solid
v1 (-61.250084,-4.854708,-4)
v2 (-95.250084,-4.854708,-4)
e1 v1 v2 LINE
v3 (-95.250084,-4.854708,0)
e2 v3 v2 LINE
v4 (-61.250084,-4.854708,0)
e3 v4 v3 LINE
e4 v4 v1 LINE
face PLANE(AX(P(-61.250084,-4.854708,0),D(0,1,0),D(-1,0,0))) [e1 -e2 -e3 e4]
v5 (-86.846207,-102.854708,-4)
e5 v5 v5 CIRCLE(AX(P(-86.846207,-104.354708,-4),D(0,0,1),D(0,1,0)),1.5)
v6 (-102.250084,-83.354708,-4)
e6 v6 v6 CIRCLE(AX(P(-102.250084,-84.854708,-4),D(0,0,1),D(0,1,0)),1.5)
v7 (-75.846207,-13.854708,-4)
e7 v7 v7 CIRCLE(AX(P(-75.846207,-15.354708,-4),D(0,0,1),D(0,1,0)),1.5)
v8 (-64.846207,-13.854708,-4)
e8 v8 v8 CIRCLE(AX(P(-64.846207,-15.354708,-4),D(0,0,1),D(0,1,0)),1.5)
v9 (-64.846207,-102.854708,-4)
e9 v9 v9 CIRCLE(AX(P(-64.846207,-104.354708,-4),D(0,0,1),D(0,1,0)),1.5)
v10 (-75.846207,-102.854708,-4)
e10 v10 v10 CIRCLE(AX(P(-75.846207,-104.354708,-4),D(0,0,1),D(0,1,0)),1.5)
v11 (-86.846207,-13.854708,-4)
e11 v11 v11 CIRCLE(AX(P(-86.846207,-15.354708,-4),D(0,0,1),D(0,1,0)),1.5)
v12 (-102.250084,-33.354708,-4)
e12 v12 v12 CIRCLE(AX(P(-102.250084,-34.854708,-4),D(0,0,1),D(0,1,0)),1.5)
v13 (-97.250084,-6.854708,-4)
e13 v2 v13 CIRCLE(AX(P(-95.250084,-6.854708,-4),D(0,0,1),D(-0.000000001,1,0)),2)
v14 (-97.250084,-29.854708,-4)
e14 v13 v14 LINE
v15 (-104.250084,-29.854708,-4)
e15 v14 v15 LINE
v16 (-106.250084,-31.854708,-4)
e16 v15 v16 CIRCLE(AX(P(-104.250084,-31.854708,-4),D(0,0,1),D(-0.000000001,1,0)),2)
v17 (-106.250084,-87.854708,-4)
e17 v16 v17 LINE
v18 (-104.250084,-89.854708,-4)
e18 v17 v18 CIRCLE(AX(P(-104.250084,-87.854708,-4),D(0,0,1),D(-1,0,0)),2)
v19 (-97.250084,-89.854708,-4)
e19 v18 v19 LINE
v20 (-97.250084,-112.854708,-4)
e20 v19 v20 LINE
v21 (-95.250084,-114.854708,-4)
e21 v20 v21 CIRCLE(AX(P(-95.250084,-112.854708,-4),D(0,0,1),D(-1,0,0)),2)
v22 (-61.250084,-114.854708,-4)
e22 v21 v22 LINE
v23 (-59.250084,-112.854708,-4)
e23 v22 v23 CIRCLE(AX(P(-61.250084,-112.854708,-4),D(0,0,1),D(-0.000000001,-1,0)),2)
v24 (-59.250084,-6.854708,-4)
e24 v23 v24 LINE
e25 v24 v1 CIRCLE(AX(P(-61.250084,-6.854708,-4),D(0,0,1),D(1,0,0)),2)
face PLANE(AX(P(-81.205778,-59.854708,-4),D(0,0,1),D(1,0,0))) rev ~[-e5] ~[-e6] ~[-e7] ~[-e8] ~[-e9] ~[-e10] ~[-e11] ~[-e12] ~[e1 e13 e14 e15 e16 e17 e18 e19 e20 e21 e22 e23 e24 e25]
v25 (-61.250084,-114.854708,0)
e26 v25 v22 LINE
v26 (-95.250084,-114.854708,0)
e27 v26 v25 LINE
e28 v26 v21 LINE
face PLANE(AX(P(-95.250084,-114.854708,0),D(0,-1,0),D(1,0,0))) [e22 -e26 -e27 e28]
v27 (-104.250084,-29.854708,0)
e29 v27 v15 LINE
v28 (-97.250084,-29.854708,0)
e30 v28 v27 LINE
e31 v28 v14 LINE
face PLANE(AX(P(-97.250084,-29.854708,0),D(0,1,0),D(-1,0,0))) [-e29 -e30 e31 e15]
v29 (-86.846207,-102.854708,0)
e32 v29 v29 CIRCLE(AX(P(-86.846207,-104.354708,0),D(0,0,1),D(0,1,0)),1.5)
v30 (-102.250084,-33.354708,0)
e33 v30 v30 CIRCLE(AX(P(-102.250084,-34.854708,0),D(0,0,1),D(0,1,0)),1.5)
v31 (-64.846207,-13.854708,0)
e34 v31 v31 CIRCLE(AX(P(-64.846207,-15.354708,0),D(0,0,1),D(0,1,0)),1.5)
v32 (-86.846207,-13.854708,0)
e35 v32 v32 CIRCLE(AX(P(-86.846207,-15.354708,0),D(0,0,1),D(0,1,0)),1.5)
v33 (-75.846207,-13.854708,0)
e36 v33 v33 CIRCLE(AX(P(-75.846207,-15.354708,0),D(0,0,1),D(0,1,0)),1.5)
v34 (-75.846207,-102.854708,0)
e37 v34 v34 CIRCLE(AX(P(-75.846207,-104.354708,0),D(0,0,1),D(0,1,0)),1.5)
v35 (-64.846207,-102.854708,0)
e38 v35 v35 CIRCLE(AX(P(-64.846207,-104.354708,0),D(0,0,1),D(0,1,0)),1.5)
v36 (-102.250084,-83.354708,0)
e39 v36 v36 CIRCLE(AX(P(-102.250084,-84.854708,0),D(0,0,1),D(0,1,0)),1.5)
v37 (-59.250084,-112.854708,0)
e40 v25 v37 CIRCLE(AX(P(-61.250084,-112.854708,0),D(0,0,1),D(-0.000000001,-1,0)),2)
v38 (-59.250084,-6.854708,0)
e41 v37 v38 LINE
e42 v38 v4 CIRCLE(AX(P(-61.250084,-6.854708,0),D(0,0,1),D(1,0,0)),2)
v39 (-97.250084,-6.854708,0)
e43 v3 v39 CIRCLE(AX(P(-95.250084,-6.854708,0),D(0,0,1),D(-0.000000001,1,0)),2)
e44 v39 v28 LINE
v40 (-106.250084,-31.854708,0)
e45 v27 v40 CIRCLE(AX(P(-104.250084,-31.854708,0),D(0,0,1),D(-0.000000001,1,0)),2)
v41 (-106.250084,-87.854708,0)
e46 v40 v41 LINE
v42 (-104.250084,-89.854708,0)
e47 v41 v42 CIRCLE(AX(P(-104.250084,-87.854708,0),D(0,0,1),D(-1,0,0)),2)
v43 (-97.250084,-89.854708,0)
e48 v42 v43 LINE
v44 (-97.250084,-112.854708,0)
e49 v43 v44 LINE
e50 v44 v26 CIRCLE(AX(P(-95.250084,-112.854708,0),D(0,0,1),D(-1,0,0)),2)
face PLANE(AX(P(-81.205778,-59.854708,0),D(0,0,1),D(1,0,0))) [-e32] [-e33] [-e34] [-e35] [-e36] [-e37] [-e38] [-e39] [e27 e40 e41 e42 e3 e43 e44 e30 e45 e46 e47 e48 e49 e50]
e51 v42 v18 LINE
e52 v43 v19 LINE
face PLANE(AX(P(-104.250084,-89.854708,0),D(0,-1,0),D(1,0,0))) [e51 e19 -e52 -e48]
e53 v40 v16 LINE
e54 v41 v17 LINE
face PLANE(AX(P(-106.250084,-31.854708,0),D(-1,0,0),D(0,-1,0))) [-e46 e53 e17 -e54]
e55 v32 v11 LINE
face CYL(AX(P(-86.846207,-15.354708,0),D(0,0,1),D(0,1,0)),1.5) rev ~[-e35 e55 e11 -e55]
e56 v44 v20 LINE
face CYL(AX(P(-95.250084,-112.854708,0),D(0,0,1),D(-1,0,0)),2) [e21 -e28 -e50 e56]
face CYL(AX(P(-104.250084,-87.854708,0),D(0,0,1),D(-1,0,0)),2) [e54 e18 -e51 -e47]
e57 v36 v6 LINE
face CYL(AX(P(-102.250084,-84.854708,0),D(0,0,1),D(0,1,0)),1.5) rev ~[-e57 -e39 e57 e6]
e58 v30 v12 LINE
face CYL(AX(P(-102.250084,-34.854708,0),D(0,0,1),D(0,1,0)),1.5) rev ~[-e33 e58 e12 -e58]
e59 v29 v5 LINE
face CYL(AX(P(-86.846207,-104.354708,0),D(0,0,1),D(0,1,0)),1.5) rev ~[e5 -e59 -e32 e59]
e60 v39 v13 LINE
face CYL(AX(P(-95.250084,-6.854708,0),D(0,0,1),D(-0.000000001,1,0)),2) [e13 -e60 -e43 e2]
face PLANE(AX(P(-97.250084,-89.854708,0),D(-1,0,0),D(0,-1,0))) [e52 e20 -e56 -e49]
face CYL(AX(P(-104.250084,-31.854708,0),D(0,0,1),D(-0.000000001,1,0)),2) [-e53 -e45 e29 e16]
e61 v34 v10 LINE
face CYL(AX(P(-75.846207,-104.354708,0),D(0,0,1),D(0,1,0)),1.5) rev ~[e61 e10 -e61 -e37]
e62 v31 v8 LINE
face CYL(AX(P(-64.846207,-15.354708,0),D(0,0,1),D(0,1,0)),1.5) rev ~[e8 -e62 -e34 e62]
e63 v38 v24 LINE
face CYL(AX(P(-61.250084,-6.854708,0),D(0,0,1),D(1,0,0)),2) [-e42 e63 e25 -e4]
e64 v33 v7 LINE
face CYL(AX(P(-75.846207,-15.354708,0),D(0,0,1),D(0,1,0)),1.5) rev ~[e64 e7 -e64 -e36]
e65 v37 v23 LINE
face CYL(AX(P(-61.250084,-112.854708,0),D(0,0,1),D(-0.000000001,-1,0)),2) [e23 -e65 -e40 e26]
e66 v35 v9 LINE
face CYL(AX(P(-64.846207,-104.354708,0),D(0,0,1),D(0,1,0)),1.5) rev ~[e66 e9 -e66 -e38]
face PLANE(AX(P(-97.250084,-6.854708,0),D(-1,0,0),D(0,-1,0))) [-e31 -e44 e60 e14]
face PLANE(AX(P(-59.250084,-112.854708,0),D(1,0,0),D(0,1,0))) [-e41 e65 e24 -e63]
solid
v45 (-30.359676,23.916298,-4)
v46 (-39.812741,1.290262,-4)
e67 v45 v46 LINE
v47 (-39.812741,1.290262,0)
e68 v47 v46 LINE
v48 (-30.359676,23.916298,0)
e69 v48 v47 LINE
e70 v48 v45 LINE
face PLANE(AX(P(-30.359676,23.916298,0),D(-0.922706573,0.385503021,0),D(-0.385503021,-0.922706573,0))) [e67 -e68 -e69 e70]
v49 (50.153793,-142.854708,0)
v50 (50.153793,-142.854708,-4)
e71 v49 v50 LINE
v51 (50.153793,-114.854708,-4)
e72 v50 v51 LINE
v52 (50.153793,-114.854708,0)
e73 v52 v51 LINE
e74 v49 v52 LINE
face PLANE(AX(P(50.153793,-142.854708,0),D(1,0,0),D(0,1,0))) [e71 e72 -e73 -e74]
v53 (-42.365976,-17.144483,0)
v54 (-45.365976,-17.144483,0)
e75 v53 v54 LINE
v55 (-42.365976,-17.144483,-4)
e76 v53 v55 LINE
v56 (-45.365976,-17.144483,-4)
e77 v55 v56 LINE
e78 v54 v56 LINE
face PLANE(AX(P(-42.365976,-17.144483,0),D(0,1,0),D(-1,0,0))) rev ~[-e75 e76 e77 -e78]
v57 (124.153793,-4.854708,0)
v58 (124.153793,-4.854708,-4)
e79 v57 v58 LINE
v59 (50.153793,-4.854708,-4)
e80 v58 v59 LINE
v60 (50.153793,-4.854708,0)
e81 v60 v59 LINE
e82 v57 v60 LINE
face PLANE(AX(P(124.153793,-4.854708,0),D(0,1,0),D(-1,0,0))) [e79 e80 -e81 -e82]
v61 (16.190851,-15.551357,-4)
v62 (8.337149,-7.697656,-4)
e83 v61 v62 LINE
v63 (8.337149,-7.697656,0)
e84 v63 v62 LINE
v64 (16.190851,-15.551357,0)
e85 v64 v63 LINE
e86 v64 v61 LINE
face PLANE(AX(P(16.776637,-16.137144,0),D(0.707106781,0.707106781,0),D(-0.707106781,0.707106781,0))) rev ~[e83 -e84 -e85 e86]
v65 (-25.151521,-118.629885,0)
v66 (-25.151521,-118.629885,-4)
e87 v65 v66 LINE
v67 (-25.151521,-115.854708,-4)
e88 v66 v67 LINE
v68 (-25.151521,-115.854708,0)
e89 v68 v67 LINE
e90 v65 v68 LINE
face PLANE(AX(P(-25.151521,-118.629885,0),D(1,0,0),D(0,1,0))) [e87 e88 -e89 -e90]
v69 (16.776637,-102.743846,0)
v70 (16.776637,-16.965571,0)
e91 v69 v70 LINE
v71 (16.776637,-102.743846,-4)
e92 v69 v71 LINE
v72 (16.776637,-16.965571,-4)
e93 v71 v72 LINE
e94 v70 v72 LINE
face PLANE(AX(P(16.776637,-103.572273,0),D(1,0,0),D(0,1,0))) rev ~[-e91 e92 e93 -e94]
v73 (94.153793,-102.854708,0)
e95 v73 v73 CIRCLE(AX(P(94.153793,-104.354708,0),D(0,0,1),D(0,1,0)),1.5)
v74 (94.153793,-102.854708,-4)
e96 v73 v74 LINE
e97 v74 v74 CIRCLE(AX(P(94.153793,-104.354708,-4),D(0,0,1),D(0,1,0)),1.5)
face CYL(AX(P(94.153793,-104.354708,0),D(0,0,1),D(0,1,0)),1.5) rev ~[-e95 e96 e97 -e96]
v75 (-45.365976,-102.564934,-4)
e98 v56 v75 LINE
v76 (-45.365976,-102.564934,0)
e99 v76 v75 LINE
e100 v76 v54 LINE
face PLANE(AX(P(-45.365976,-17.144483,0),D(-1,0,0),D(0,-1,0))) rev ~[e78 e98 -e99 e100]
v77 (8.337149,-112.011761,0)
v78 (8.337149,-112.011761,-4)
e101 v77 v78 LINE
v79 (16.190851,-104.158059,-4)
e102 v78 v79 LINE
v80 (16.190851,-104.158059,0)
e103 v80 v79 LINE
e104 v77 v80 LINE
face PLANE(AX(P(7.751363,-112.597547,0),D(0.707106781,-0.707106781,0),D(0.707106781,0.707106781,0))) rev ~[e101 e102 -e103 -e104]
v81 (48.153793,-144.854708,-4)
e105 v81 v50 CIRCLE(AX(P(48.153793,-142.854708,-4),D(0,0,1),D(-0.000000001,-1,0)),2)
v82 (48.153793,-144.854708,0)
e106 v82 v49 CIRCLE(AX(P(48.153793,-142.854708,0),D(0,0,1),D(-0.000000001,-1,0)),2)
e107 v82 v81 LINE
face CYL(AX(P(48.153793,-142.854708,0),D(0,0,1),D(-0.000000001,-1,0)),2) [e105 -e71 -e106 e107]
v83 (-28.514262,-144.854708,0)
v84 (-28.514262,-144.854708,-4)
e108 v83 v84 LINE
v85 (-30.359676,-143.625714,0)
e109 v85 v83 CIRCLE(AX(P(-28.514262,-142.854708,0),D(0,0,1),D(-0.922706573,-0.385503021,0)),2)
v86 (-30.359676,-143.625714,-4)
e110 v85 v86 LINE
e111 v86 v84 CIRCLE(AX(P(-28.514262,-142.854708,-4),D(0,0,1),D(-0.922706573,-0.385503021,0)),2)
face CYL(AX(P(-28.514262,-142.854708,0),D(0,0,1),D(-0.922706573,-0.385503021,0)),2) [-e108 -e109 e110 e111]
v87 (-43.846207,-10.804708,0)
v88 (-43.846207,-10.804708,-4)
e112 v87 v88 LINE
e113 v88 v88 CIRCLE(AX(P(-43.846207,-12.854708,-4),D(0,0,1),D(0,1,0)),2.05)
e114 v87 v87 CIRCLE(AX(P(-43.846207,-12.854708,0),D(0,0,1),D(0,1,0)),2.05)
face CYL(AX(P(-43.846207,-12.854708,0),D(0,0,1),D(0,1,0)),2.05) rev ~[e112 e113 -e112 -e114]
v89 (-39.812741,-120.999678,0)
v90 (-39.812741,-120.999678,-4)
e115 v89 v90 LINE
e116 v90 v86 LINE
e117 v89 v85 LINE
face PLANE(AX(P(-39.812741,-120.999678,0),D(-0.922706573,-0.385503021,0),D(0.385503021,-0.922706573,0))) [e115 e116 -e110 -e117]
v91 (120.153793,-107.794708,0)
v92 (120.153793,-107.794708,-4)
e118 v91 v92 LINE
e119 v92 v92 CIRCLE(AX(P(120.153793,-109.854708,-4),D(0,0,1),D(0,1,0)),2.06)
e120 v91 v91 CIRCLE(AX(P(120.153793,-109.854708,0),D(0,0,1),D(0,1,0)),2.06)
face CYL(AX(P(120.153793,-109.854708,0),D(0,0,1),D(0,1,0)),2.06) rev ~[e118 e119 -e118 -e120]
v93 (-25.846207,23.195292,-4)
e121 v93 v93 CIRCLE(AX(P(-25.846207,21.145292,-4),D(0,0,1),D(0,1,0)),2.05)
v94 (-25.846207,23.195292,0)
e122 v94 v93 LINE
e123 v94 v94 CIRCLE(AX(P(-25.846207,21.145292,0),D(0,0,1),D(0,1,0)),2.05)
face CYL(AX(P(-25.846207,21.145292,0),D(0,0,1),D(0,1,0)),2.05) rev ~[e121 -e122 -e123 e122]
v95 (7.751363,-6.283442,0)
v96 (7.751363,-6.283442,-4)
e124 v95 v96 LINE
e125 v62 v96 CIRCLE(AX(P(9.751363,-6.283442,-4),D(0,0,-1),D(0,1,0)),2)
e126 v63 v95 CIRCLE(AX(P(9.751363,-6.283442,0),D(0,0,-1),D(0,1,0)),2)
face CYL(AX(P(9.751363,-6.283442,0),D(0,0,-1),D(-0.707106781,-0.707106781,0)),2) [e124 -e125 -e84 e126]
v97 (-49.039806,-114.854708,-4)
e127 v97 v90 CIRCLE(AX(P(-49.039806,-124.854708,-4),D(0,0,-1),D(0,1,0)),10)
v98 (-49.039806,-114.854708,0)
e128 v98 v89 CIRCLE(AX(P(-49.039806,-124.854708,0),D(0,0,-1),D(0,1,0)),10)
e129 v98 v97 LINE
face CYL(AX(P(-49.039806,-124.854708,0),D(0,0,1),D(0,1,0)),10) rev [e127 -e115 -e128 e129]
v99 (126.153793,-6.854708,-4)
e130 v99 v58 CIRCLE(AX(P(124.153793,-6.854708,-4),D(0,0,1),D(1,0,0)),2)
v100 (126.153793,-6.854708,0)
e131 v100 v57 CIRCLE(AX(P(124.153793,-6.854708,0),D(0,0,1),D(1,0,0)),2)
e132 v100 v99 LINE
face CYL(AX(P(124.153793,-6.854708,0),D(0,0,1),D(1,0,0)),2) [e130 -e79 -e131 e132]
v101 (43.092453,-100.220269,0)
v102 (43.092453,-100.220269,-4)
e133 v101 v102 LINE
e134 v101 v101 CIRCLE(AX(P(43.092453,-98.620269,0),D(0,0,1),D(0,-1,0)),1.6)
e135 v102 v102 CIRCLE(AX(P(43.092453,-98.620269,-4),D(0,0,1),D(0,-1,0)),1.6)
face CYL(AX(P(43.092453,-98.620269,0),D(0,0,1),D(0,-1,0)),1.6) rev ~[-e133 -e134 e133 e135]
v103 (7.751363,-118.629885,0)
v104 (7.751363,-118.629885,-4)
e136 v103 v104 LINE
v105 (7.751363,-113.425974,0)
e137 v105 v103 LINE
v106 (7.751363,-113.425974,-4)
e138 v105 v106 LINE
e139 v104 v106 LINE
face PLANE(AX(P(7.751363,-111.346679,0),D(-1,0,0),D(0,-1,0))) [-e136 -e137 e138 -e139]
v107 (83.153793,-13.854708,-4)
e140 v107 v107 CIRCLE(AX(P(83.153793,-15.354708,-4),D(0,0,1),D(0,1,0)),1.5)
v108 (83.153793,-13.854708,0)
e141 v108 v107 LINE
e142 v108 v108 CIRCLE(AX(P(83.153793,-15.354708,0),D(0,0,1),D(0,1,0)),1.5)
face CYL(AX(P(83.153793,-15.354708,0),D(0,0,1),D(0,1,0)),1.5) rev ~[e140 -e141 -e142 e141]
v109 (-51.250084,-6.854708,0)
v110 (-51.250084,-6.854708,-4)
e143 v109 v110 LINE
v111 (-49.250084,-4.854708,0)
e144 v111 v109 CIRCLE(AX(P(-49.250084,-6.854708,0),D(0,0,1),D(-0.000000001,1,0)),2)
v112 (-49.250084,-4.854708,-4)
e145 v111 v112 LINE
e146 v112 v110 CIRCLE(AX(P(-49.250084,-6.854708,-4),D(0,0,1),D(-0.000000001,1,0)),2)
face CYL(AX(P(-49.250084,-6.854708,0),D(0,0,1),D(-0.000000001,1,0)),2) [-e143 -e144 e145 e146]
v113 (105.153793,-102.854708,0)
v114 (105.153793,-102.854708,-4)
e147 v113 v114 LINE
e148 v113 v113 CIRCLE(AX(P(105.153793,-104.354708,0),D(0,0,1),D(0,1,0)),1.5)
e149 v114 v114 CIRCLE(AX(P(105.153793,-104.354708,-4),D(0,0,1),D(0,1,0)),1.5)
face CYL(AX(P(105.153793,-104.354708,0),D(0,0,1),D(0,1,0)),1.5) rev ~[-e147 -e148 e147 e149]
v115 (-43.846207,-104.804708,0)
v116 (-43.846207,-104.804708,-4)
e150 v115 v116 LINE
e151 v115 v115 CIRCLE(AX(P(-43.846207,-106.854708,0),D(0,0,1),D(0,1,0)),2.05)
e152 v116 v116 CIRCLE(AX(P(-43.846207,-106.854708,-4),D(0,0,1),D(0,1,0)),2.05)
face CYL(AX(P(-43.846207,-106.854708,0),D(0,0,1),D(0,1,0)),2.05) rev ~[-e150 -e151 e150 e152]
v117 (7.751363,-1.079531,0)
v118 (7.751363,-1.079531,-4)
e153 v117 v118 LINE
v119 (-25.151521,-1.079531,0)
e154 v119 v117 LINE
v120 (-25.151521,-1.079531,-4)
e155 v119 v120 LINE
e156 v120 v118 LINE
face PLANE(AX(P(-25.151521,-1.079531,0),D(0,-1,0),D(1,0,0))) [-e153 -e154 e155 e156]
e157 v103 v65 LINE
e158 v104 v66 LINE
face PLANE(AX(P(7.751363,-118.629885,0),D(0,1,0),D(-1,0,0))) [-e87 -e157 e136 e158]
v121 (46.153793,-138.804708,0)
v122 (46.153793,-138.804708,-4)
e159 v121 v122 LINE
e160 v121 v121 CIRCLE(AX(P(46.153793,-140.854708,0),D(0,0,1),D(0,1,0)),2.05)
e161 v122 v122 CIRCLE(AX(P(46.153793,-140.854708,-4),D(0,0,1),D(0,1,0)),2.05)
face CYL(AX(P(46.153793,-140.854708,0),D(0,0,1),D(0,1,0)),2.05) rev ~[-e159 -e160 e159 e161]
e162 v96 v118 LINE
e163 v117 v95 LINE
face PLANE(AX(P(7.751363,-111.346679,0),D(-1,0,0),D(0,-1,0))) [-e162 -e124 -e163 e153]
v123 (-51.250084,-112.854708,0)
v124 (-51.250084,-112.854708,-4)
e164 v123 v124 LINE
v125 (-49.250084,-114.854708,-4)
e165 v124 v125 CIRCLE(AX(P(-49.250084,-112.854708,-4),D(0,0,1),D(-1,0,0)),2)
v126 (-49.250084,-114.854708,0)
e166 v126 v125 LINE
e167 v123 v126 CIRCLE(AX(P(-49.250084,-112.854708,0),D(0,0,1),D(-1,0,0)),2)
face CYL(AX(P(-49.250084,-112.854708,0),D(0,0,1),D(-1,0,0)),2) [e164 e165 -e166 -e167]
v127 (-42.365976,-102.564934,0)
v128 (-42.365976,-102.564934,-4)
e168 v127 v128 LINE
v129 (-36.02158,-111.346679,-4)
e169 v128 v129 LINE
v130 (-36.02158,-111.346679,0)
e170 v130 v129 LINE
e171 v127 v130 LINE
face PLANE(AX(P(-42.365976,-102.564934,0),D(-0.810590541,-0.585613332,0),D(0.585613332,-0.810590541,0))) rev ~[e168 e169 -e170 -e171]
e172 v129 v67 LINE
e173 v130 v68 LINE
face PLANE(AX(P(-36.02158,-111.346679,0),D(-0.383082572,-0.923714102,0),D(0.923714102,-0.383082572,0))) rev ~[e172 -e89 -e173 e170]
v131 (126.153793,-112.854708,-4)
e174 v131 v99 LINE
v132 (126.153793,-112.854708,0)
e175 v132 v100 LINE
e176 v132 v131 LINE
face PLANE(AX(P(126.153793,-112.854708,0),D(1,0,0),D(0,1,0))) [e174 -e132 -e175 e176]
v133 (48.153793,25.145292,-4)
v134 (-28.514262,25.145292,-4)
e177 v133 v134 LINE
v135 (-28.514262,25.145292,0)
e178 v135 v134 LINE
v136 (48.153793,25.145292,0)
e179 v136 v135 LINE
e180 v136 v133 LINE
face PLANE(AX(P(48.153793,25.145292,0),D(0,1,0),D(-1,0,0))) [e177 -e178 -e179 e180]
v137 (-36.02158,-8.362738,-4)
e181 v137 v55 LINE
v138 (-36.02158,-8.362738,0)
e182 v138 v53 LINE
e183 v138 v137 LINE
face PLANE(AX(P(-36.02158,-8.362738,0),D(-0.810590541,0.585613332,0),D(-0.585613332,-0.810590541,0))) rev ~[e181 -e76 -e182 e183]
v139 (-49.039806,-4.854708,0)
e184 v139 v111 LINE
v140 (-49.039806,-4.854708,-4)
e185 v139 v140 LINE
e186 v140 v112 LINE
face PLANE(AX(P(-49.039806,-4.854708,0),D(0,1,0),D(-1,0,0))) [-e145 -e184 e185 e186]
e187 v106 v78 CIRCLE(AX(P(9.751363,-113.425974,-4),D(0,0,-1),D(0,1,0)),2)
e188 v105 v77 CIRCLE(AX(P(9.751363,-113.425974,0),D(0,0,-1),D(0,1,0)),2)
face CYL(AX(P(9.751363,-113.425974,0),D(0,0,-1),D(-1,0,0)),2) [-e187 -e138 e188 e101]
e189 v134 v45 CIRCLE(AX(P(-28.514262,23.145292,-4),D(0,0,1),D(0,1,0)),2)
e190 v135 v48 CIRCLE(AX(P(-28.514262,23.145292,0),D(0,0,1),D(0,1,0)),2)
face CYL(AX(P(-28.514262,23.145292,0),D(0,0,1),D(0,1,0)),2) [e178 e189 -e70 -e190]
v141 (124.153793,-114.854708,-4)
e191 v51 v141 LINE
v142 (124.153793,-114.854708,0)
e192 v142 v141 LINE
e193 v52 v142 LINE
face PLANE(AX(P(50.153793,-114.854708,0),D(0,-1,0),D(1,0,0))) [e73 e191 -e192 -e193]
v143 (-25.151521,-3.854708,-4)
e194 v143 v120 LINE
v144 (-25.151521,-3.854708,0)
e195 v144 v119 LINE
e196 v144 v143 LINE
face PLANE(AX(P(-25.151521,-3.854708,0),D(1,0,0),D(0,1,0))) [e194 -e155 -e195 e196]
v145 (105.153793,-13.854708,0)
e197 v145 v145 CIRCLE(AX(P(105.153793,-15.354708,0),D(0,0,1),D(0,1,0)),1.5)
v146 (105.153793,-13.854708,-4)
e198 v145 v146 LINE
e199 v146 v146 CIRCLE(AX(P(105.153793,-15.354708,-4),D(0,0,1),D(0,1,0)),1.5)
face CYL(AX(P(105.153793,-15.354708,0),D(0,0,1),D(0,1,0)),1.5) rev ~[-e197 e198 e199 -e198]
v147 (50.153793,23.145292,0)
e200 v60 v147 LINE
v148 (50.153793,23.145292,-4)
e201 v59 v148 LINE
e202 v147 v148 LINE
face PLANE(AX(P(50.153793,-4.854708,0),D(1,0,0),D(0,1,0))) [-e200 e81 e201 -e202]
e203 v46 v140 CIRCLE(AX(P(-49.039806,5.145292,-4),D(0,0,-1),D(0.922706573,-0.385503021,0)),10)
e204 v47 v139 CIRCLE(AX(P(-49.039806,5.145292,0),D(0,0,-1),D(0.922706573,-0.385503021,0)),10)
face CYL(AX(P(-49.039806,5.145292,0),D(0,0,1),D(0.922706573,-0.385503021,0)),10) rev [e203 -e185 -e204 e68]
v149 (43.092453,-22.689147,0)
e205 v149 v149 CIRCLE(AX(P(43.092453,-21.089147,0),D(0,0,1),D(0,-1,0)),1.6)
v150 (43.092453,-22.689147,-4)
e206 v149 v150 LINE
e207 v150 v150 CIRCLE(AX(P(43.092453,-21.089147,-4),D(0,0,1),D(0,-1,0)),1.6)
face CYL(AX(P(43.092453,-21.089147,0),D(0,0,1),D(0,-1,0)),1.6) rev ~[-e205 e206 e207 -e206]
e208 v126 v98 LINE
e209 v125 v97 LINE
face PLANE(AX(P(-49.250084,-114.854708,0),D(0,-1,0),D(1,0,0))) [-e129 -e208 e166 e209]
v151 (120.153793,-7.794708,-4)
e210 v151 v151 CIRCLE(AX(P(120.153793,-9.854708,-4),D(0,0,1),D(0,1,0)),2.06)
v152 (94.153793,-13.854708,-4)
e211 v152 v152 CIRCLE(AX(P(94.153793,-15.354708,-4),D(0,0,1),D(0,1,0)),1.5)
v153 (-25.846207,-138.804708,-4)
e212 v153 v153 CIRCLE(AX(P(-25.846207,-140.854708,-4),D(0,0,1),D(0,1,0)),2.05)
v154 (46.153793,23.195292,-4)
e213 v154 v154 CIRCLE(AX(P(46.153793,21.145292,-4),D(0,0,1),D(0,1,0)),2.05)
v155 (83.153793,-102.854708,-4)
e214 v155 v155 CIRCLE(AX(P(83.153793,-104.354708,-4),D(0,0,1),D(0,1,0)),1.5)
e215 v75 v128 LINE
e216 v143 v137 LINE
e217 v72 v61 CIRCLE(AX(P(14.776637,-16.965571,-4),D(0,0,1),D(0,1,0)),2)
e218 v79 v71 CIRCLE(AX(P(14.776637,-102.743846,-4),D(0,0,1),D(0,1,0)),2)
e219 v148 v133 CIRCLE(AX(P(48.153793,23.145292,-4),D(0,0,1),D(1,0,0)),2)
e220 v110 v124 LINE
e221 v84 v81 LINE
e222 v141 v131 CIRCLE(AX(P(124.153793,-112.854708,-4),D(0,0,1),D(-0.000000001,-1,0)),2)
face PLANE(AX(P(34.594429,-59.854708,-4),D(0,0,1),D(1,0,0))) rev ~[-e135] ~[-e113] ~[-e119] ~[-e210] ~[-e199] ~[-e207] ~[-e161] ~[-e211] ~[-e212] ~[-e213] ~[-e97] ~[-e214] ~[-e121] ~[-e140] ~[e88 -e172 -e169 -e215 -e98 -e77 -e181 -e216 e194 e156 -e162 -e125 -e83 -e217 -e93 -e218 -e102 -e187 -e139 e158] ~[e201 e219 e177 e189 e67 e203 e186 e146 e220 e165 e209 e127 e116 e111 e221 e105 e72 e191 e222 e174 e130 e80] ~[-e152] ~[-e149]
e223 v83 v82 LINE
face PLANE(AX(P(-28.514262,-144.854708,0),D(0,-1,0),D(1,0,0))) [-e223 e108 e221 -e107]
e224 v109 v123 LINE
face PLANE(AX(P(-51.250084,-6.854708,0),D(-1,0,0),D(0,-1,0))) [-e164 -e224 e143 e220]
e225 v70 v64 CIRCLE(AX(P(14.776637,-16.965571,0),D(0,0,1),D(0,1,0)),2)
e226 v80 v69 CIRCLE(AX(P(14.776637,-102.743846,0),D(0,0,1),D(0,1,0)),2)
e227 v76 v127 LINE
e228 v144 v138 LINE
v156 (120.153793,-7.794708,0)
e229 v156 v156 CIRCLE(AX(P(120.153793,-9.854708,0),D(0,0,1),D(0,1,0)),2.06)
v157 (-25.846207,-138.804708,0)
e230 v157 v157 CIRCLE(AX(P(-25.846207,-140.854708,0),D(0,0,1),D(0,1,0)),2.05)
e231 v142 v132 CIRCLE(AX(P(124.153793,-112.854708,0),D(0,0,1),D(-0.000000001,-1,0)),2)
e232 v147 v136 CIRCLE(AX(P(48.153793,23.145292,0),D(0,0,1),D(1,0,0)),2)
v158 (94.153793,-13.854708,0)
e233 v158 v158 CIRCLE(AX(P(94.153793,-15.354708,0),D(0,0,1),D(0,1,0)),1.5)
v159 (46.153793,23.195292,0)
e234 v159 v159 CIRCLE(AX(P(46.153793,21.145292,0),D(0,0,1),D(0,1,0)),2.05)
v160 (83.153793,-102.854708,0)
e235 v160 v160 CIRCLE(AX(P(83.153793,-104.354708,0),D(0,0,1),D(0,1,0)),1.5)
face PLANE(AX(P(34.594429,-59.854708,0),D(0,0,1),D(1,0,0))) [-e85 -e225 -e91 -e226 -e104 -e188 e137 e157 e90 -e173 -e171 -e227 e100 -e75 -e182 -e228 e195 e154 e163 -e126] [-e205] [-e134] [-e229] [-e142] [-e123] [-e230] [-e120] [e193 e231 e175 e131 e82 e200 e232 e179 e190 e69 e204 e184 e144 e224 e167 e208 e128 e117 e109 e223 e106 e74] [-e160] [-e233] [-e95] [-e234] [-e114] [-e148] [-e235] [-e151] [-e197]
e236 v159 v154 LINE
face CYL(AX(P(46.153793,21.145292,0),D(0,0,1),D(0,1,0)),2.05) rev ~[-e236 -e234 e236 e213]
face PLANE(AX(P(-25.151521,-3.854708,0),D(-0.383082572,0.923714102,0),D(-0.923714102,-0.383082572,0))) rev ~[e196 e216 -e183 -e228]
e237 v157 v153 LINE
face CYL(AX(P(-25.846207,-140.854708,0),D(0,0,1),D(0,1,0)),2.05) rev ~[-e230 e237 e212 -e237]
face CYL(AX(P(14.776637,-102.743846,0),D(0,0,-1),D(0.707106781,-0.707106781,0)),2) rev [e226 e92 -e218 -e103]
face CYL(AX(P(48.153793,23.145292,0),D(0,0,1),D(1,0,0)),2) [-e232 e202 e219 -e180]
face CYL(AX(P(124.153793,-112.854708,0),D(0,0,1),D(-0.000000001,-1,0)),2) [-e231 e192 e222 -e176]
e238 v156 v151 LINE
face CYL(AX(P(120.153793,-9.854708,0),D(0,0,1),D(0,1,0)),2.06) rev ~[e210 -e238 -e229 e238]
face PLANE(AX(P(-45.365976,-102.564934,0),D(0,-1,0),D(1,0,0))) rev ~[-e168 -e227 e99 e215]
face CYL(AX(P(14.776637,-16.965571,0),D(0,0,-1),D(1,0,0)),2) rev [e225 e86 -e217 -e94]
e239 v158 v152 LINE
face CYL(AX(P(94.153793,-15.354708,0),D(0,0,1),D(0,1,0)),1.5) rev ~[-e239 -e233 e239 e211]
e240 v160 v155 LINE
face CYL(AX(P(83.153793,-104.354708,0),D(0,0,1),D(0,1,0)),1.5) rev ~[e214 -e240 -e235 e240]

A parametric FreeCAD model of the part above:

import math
import FreeCAD as App
import Part
import Sketcher

V = App.Vector
Q = App.Units.Quantity


def edges_at(feature, points):
    """Names of the edges that pass closest to the given points."""
    edges = feature.Shape.Edges
    near = lambda p: min(range(len(edges)), key=lambda i: edges[i].distToShape(Part.Vertex(*p))[0])
    return sorted({f"Edge{near(p) + 1}" for p in points})


def add_polygon(sketch, points):
    """Adds a closed chain of lines whose ends are joined by coincident constraints."""
    first, n = sketch.GeometryCount, len(points)
    for a, b in zip(points, points[1:] + points[:1]):
        sketch.addGeometry(Part.LineSegment(App.Vector(*a, 0), App.Vector(*b, 0)), False)
    for i in range(n):
        sketch.addConstraint(Sketcher.Constraint("Coincident", first + i, 2, first + (i + 1) % n, 1))

doc = App.newDocument("Part")
params = doc.addObject("Spreadsheet::Sheet", "Params")
for row, (alias, value) in enumerate([
    ("sketch1_diameter", "3 mm"),
    ("sketch1_radius", "2 mm"),
    ("sketch1_width", "7 mm"),
    ("sketch1_width2", "34 mm"),
    ("sketch1_height", "56 mm"),
    ("pad1_length", "4 mm"),
    ("sketch2_diameter", "3 mm"),
    ("sketch2_radius", "2 mm"),
    ("sketch2_radius2", "10 mm"),
    ("sketch2_diameter2", "4.1 mm"),
    ("sketch2_diameter3", "3.2 mm"),
    ("pad2_length", "4 mm"),
    ("pocket1_length", "4 mm"),
    ("pocket2_length", "4 mm"),
    ("fillet_radius", "2 mm"),
], start=1):
    params.set(f"A{row}", alias)
    params.set(f"B{row}", "=" + value)
    params.setAlias(f"B{row}", alias)

body = doc.addObject("PartDesign::Body", "Body")

# Sketch on XY plane
sketch1 = body.newObject("Sketcher::SketchObject", "Sketch")
sketch1.AttachmentSupport = (doc.getObject("XY_Plane"), [""])
sketch1.MapMode = "FlatFace"
sketch1.addGeometry([
    Part.LineSegment(V(-97.250084, -29.854708, 0), V(-104.250084, -29.854708, 0)),  # 0
    Part.ArcOfCircle(Part.Circle(V(-104.250084, -31.854708, 0), V(0, 0, 1), 2), math.radians(90), math.radians(180)),  # 1
    Part.LineSegment(V(-106.250084, -31.854708, 0), V(-106.250084, -87.854708, 0)),  # 2
    Part.ArcOfCircle(Part.Circle(V(-104.250084, -87.854708, 0), V(0, 0, 1), 2), math.radians(180), math.radians(270)),  # 3
    Part.LineSegment(V(-104.250084, -89.854708, 0), V(-97.250084, -89.854708, 0)),  # 4
    Part.LineSegment(V(-97.250084, -89.854708, 0), V(-97.250084, -112.854708, 0)),  # 5
    Part.ArcOfCircle(Part.Circle(V(-95.250084, -112.854708, 0), V(0, 0, 1), 2), math.radians(180), math.radians(270)),  # 6
    Part.LineSegment(V(-95.250084, -114.854708, 0), V(-61.250084, -114.854708, 0)),  # 7
    Part.ArcOfCircle(Part.Circle(V(-61.250084, -112.854708, 0), V(0, 0, 1), 2), math.radians(-90), math.radians(0)),  # 8
    Part.LineSegment(V(-59.250084, -112.854708, 0), V(-59.250084, -6.854708, 0)),  # 9
    Part.ArcOfCircle(Part.Circle(V(-61.250084, -6.854708, 0), V(0, 0, 1), 2), math.radians(0), math.radians(90)),  # 10
    Part.LineSegment(V(-61.250084, -4.854708, 0), V(-95.250084, -4.854708, 0)),  # 11
    Part.ArcOfCircle(Part.Circle(V(-95.250084, -6.854708, 0), V(0, 0, 1), 2), math.radians(90), math.radians(180)),  # 12
    Part.LineSegment(V(-97.250084, -6.854708, 0), V(-97.250084, -29.854708, 0)),  # 13
    Part.Circle(V(-102.250084, -84.854708, 0), V(0, 0, 1), 1.5),  # 14
    Part.Circle(V(-86.846207, -104.354708, 0), V(0, 0, 1), 1.5),  # 15
    Part.Circle(V(-75.846207, -104.354708, 0), V(0, 0, 1), 1.5),  # 16
    Part.Circle(V(-64.846207, -104.354708, 0), V(0, 0, 1), 1.5),  # 17
    Part.Circle(V(-102.250084, -34.854708, 0), V(0, 0, 1), 1.5),  # 18
    Part.Circle(V(-86.846207, -15.354708, 0), V(0, 0, 1), 1.5),  # 19
    Part.Circle(V(-75.846207, -15.354708, 0), V(0, 0, 1), 1.5),  # 20
    Part.Circle(V(-64.846207, -15.354708, 0), V(0, 0, 1), 1.5),  # 21
], False)
sketch1.addConstraint([
    Sketcher.Constraint("Tangent", 0, 2, 1, 1),
    Sketcher.Constraint("Tangent", 1, 2, 2, 1),
    Sketcher.Constraint("Tangent", 2, 2, 3, 1),
    Sketcher.Constraint("Tangent", 3, 2, 4, 1),
    Sketcher.Constraint("Coincident", 4, 2, 5, 1),
    Sketcher.Constraint("Tangent", 5, 2, 6, 1),
    Sketcher.Constraint("Tangent", 6, 2, 7, 1),
    Sketcher.Constraint("Tangent", 7, 2, 8, 1),
    Sketcher.Constraint("Tangent", 8, 2, 9, 1),
    Sketcher.Constraint("Tangent", 9, 2, 10, 1),
    Sketcher.Constraint("Tangent", 10, 2, 11, 1),
    Sketcher.Constraint("Tangent", 11, 2, 12, 1),
    Sketcher.Constraint("Tangent", 12, 2, 13, 1),
    Sketcher.Constraint("Coincident", 13, 2, 0, 1),
    Sketcher.Constraint("Horizontal", 0),
    Sketcher.Constraint("Vertical", 2),
    Sketcher.Constraint("Horizontal", 4),
    Sketcher.Constraint("Vertical", 5),
    Sketcher.Constraint("Horizontal", 7),
    Sketcher.Constraint("Vertical", 9),
    Sketcher.Constraint("Horizontal", 11),
    Sketcher.Constraint("Vertical", 13),
    Sketcher.Constraint("Equal", 1, 3),
    Sketcher.Constraint("Equal", 3, 6),
    Sketcher.Constraint("Equal", 6, 8),
    Sketcher.Constraint("Equal", 8, 10),
    Sketcher.Constraint("Equal", 10, 12),
    Sketcher.Constraint("Equal", 14, 15),
    Sketcher.Constraint("Equal", 15, 16),
    Sketcher.Constraint("Equal", 16, 17),
    Sketcher.Constraint("Equal", 17, 18),
    Sketcher.Constraint("Equal", 18, 19),
    Sketcher.Constraint("Equal", 19, 20),
    Sketcher.Constraint("Equal", 20, 21),
    Sketcher.Constraint("Horizontal", 15, 3, 16, 3),
    Sketcher.Constraint("Horizontal", 16, 3, 17, 3),
    Sketcher.Constraint("Horizontal", 19, 3, 20, 3),
    Sketcher.Constraint("Horizontal", 20, 3, 21, 3),
    Sketcher.Constraint("Vertical", 6, 3, 12, 3),
    Sketcher.Constraint("Vertical", 14, 3, 18, 3),
    Sketcher.Constraint("Vertical", 15, 3, 19, 3),
    Sketcher.Constraint("Vertical", 16, 3, 20, 3),
    Sketcher.Constraint("Vertical", 17, 3, 21, 3),
    Sketcher.Constraint("Equal", 5, 13),
    Sketcher.Constraint("Diameter", 14, Q("3 mm")),
    Sketcher.Constraint("Radius", 1, Q("2 mm")),
    Sketcher.Constraint("DistanceX", 0, 2, 0, 1, Q("7 mm")),
    Sketcher.Constraint("DistanceX", 7, 1, 7, 2, Q("34 mm")),
    Sketcher.Constraint("DistanceY", 2, 2, 2, 1, Q("56 mm")),
    Sketcher.Constraint("DistanceY", 5, 2, 5, 1, Q("23 mm")),
    Sketcher.Constraint("DistanceX", 3, 3, 14, 3, Q("2 mm")),
    Sketcher.Constraint("DistanceY", 3, 3, 14, 3, Q("3 mm")),
    Sketcher.Constraint("DistanceX", 15, 3, 16, 3, Q("11 mm")),
    Sketcher.Constraint("DistanceX", 16, 3, 17, 3, Q("11 mm")),
    Sketcher.Constraint("DistanceY", 18, 3, 1, 3, Q("3 mm")),
    Sketcher.Constraint("DistanceY", 6, 3, 15, 3, Q("8.5 mm")),
    Sketcher.Constraint("DistanceY", 19, 3, 12, 3, Q("8.5 mm")),
    Sketcher.Constraint("DistanceY", 1, 3, -1, 1, Q("31.854708 mm")),
    Sketcher.Constraint("DistanceX", 1, 3, -1, 1, Q("104.250084 mm")),
    Sketcher.Constraint("DistanceX", 15, 3, -1, 1, Q("86.846207 mm")),
])
sketch1.setExpression("Constraints[44]", "Params.sketch1_diameter")
sketch1.setExpression("Constraints[45]", "Params.sketch1_radius")
sketch1.setExpression("Constraints[46]", "Params.sketch1_width")
sketch1.setExpression("Constraints[47]", "Params.sketch1_width2")
sketch1.setExpression("Constraints[48]", "Params.sketch1_height")
pad1 = body.newObject("PartDesign::Pad", "Pad")
pad1.Profile = sketch1
pad1.setExpression("Length", "Params.pad1_length")
pad1.Reversed = True
body2 = doc.addObject("PartDesign::Body", "Body001")

# Sketch on XY plane
sketch2 = body2.newObject("Sketcher::SketchObject", "Sketch001")
sketch2.AttachmentSupport = (doc.getObject("XY_Plane001"), [""])
sketch2.MapMode = "FlatFace"
sketch2.addGeometry(Part.LineSegment(V(-51.250084, -6.854708, 0), V(-51.250084, -112.854708, 0)), False)  # 0
sketch2.addGeometry(Part.ArcOfCircle(Part.Circle(V(-49.250084, -112.854708, 0), V(0, 0, 1), 2), math.radians(180), math.radians(270)), False)  # 1
sketch2.addGeometry(Part.LineSegment(V(-49.250084, -114.854708, 0), V(-49.039806, -114.854708, 0)), False)  # 2
sketch2.addGeometry(Part.ArcOfCircle(Part.Circle(V(-49.039806, -124.854708, 0), V(0, 0, 1), 10), math.radians(22.674972), math.radians(90)), False)  # 3
sketch2.addGeometry(Part.LineSegment(V(-39.812741, -120.999678, 0), V(-30.359676, -143.625714, 0)), False)  # 4
sketch2.addGeometry(Part.ArcOfCircle(Part.Circle(V(-28.514262, -142.854708, 0), V(0, 0, 1), 2), math.radians(-157.325028), math.radians(-90)), False)  # 5
sketch2.addGeometry(Part.LineSegment(V(-28.514262, -144.854708, 0), V(48.153793, -144.854708, 0)), False)  # 6
sketch2.addGeometry(Part.ArcOfCircle(Part.Circle(V(48.153793, -142.854708, 0), V(0, 0, 1), 2), math.radians(-90), math.radians(0)), False)  # 7
sketch2.addGeometry(Part.LineSegment(V(50.153793, -142.854708, 0), V(50.153793, -114.854708, 0)), False)  # 8
sketch2.addGeometry(Part.LineSegment(V(50.153793, -114.854708, 0), V(124.153793, -114.854708, 0)), False)  # 9
sketch2.addGeometry(Part.ArcOfCircle(Part.Circle(V(124.153793, -112.854708, 0), V(0, 0, 1), 2), math.radians(-90), math.radians(0)), False)  # 10
sketch2.addGeometry(Part.LineSegment(V(126.153793, -112.854708, 0), V(126.153793, -6.854708, 0)), False)  # 11
sketch2.addGeometry(Part.ArcOfCircle(Part.Circle(V(124.153793, -6.854708, 0), V(0, 0, 1), 2), math.radians(0), math.radians(90)), False)  # 12
sketch2.addGeometry(Part.LineSegment(V(124.153793, -4.854708, 0), V(50.153793, -4.854708, 0)), False)  # 13
sketch2.addGeometry(Part.LineSegment(V(50.153793, -4.854708, 0), V(50.153793, 23.145292, 0)), False)  # 14
sketch2.addGeometry(Part.ArcOfCircle(Part.Circle(V(48.153793, 23.145292, 0), V(0, 0, 1), 2), math.radians(0), math.radians(90)), False)  # 15
sketch2.addGeometry(Part.LineSegment(V(48.153793, 25.145292, 0), V(-28.514262, 25.145292, 0)), False)  # 16
sketch2.addGeometry(Part.ArcOfCircle(Part.Circle(V(-28.514262, 23.145292, 0), V(0, 0, 1), 2), math.radians(90), math.radians(157.325028)), False)  # 17
sketch2.addGeometry(Part.LineSegment(V(-30.359676, 23.916298, 0), V(-39.812741, 1.290262, 0)), False)  # 18
sketch2.addGeometry(Part.ArcOfCircle(Part.Circle(V(-49.039806, 5.145292, 0), V(0, 0, 1), 10), math.radians(-90), math.radians(-22.674972)), False)  # 19
sketch2.addGeometry(Part.LineSegment(V(-49.039806, -4.854708, 0), V(-49.250084, -4.854708, 0)), False)  # 20
sketch2.addGeometry(Part.ArcOfCircle(Part.Circle(V(-49.250084, -6.854708, 0), V(0, 0, 1), 2), math.radians(90), math.radians(180)), False)  # 21
sketch2.addGeometry(Part.Circle(V(-25.846207, -140.854708, 0), V(0, 0, 1), 2.05), False)  # 22
sketch2.addGeometry(Part.Circle(V(-43.846207, -106.854708, 0), V(0, 0, 1), 2.05), False)  # 23
add_polygon(sketch2, [(-42.365976, -102.564934), (-45.365976, -102.564934), (-45.365976, -61.468214), (7.751363, -61.468214), (7.751363, -111.346679), (2.153793, -115.854708), (-25.151521, -115.854708), (-36.02158, -111.346679)])  # lines 24-31
sketch2.addGeometry(Part.Circle(V(46.153793, -140.854708, 0), V(0, 0, 1), 2.05), False)  # 32
sketch2.addGeometry(Part.Circle(V(83.153793, -104.354708, 0), V(0, 0, 1), 1.5), False)  # 33
sketch2.addGeometry(Part.Circle(V(94.153793, -104.354708, 0), V(0, 0, 1), 1.5), False)  # 34
sketch2.addGeometry(Part.Circle(V(105.153793, -104.354708, 0), V(0, 0, 1), 1.5), False)  # 35
sketch2.addGeometry(Part.Circle(V(120.153793, -109.854708, 0), V(0, 0, 1), 2.06), False)  # 36
sketch2.addGeometry(Part.Circle(V(43.092453, -98.620269, 0), V(0, 0, 1), 1.6), False)  # 37
add_polygon(sketch2, [(-25.151521, -3.854708), (2.153793, -3.854708), (7.751363, -8.362738), (7.751363, -58.241203), (-45.365976, -58.241203), (-45.365976, -17.144483), (-42.365976, -17.144483), (-36.02158, -8.362738)])  # lines 38-45
sketch2.addGeometry(Part.Circle(V(-43.846207, -12.854708, 0), V(0, 0, 1), 2.05), False)  # 46
sketch2.addGeometry(Part.Circle(V(-25.846207, 21.145292, 0), V(0, 0, 1), 2.05), False)  # 47
sketch2.addGeometry(Part.Circle(V(43.092453, -21.089147, 0), V(0, 0, 1), 1.6), False)  # 48
sketch2.addGeometry(Part.Circle(V(46.153793, 21.145292, 0), V(0, 0, 1), 2.05), False)  # 49
sketch2.addGeometry(Part.Circle(V(83.153793, -15.354708, 0), V(0, 0, 1), 1.5), False)  # 50
sketch2.addGeometry(Part.Circle(V(94.153793, -15.354708, 0), V(0, 0, 1), 1.5), False)  # 51
sketch2.addGeometry(Part.Circle(V(105.153793, -15.354708, 0), V(0, 0, 1), 1.5), False)  # 52
sketch2.addGeometry(Part.Circle(V(120.153793, -9.854708, 0), V(0, 0, 1), 2.06), False)  # 53
sketch2.addConstraint([
    Sketcher.Constraint("Tangent", 0, 2, 1, 1),
    Sketcher.Constraint("Tangent", 1, 2, 2, 1),
    Sketcher.Constraint("Tangent", 2, 2, 3, 2),
    Sketcher.Constraint("Tangent", 3, 1, 4, 1),
    Sketcher.Constraint("Tangent", 4, 2, 5, 1),
    Sketcher.Constraint("Tangent", 5, 2, 6, 1),
    Sketcher.Constraint("Tangent", 6, 2, 7, 1),
    Sketcher.Constraint("Tangent", 7, 2, 8, 1),
    Sketcher.Constraint("Coincident", 8, 2, 9, 1),
    Sketcher.Constraint("Tangent", 9, 2, 10, 1),
    Sketcher.Constraint("Tangent", 10, 2, 11, 1),
    Sketcher.Constraint("Tangent", 11, 2, 12, 1),
    Sketcher.Constraint("Tangent", 12, 2, 13, 1),
    Sketcher.Constraint("Coincident", 13, 2, 14, 1),
    Sketcher.Constraint("Tangent", 14, 2, 15, 1),
    Sketcher.Constraint("Tangent", 15, 2, 16, 1),
    Sketcher.Constraint("Tangent", 16, 2, 17, 1),
    Sketcher.Constraint("Tangent", 17, 2, 18, 1),
    Sketcher.Constraint("Tangent", 18, 2, 19, 2),
    Sketcher.Constraint("Tangent", 19, 1, 20, 1),
    Sketcher.Constraint("Tangent", 20, 2, 21, 1),
    Sketcher.Constraint("Tangent", 21, 2, 0, 1),
    Sketcher.Constraint("Vertical", 0),
    Sketcher.Constraint("Horizontal", 2),
    Sketcher.Constraint("Horizontal", 6),
    Sketcher.Constraint("Vertical", 8),
    Sketcher.Constraint("Horizontal", 9),
    Sketcher.Constraint("Vertical", 11),
    Sketcher.Constraint("Horizontal", 13),
    Sketcher.Constraint("Vertical", 14),
    Sketcher.Constraint("Horizontal", 16),
    Sketcher.Constraint("Horizontal", 20),
    Sketcher.Constraint("Horizontal", 24),
    Sketcher.Constraint("Vertical", 25),
    Sketcher.Constraint("Horizontal", 26),
    Sketcher.Constraint("Vertical", 27),
    Sketcher.Constraint("Horizontal", 29),
    Sketcher.Constraint("Horizontal", 38),
    Sketcher.Constraint("Vertical", 40),
    Sketcher.Constraint("Horizontal", 41),
    Sketcher.Constraint("Vertical", 42),
    Sketcher.Constraint("Horizontal", 43),
    Sketcher.Constraint("Equal", 1, 5),
    Sketcher.Constraint("Equal", 5, 7),
    Sketcher.Constraint("Equal", 7, 10),
    Sketcher.Constraint("Equal", 10, 12),
    Sketcher.Constraint("Equal", 12, 15),
    Sketcher.Constraint("Equal", 15, 17),
    Sketcher.Constraint("Equal", 3, 19),
    Sketcher.Constraint("Equal", 17, 21),
    Sketcher.Constraint("Equal", 22, 23),
    Sketcher.Constraint("Equal", 23, 32),
    Sketcher.Constraint("Equal", 33, 34),
    Sketcher.Constraint("Equal", 34, 35),
    Sketcher.Constraint("Equal", 32, 46),
    Sketcher.Constraint("Equal", 46, 47),
    Sketcher.Constraint("Equal", 37, 48),
    Sketcher.Constraint("Equal", 47, 49),
    Sketcher.Constraint("Equal", 35, 50),
    Sketcher.Constraint("Equal", 50, 51),
    Sketcher.Constraint("Equal", 51, 52),
    Sketcher.Constraint("Equal", 36, 53),
    Sketcher.Constraint("Horizontal", 1, 3, 10, 3),
    Sketcher.Constraint("Horizontal", 12, 3, 21, 3),
    Sketcher.Constraint("Horizontal", 22, 3, 32, 3),
    Sketcher.Constraint("Horizontal", 33, 3, 34, 3),
    Sketcher.Constraint("Horizontal", 34, 3, 35, 3),
    Sketcher.Constraint("Horizontal", 47, 3, 49, 3),
    Sketcher.Constraint("Horizontal", 50, 3, 51, 3),
    Sketcher.Constraint("Horizontal", 51, 3, 52, 3),
    Sketcher.Constraint("Horizontal", 27, 2, 30, 2),
    Sketcher.Constraint("Horizontal", 39, 2, 44, 2),
    Sketcher.Constraint("Vertical", 7, 3, 15, 3),
    Sketcher.Constraint("Vertical", 5, 3, 17, 3),
    Sketcher.Constraint("Vertical", 3, 3, 19, 3),
    Sketcher.Constraint("Vertical", 23, 3, 46, 3),
    Sketcher.Constraint("Vertical", 22, 3, 47, 3),
    Sketcher.Constraint("Vertical", 37, 3, 48, 3),
    Sketcher.Constraint("Vertical", 32, 3, 49, 3),
    Sketcher.Constraint("Vertical", 33, 3, 50, 3),
    Sketcher.Constraint("Vertical", 34, 3, 51, 3),
    Sketcher.Constraint("Vertical", 35, 3, 52, 3),
    Sketcher.Constraint("Vertical", 36, 3, 53, 3),
    Sketcher.Constraint("Vertical", 4, 2, 17, 2),
    Sketcher.Constraint("Vertical", 28, 2, 38, 2),
    Sketcher.Constraint("Vertical", 27, 2, 39, 2),
    Sketcher.Constraint("Vertical", 25, 2, 41, 2),
    Sketcher.Constraint("Vertical", 31, 2, 43, 2),
    Sketcher.Constraint("Vertical", 30, 2, 44, 2),
    Sketcher.Constraint("Vertical", 29, 2, 45, 2),
    Sketcher.Constraint("Equal", 27, 40),
    Sketcher.Constraint("Equal", 25, 42),
    Sketcher.Constraint("Equal", 28, 39),
    Sketcher.Constraint("Diameter", 33, Q("3 mm")),
    Sketcher.Constraint("Radius", 1, Q("2 mm")),
    Sketcher.Constraint("Radius", 3, Q("10 mm")),
    Sketcher.Constraint("Diameter", 22, Q("4.1 mm")),
    Sketcher.Constraint("Diameter", 37, Q("3.2 mm")),
    Sketcher.Constraint("Diameter", 36, Q("4.12 mm")),
    Sketcher.Constraint("DistanceX", 9, 1, 9, 2, Q("74 mm")),
    Sketcher.Constraint("DistanceX", 24, 2, 24, 1, Q("3 mm")),
    Sketcher.Constraint("DistanceY", 0, 2, 0, 1, Q("106 mm")),
    Sketcher.Constraint("DistanceY", 8, 1, 8, 2, Q("28 mm")),
    Sketcher.Constraint("DistanceX", 26, 1, 26, 2, Q("53.117339 mm")),
    Sketcher.Constraint("DistanceY", 25, 1, 25, 2, Q("41.09672 mm")),
    Sketcher.Constraint("Distance", 28, Q("7.18715 mm")),
    Sketcher.Constraint("DistanceX", 2, 1, 2, 2, Q("0.210277 mm")),
    Sketcher.Constraint("DistanceX", 6, 1, 6, 2, Q("76.668055 mm")),
    Sketcher.Constraint("DistanceX", 29, 2, 29, 1, Q("27.305314 mm")),
    Sketcher.Constraint("DistanceY", 27, 2, 27, 1, Q("49.878465 mm")),
    Sketcher.Constraint("DistanceY", 1, 3, -1, 1, Q("112.854708 mm")),
    Sketcher.Constraint("DistanceY", 22, 3, -1, 1, Q("140.854708 mm")),
    Sketcher.Constraint("DistanceY", 23, 3, -1, 1, Q("106.854708 mm")),
    Sketcher.Constraint("DistanceY", 33, 3, -1, 1, Q("104.354708 mm")),
    Sketcher.Constraint("DistanceY", 36, 3, -1, 1, Q("109.854708 mm")),
    Sketcher.Constraint("DistanceY", 37, 3, -1, 1, Q("98.620269 mm")),
    Sketcher.Constraint("DistanceY", 46, 3, -1, 1, Q("12.854708 mm")),
    Sketcher.Constraint("DistanceY", -1, 1, 47, 3, Q("21.145292 mm")),
    Sketcher.Constraint("DistanceY", 50, 3, -1, 1, Q("15.354708 mm")),
    Sketcher.Constraint("DistanceY", 53, 3, -1, 1, Q("9.854708 mm")),
    Sketcher.Constraint("DistanceX", 3, 1, -1, 1, Q("39.812741 mm")),
    Sketcher.Constraint("DistanceY", -1, 1, 18, 2, Q("1.290262 mm")),
    Sketcher.Constraint("DistanceY", 27, 2, -1, 1, Q("111.346679 mm")),
    Sketcher.Constraint("DistanceY", 28, 2, -1, 1, Q("115.854708 mm")),
    Sketcher.Constraint("DistanceX", 29, 2, -1, 1, Q("25.151521 mm")),
    Sketcher.Constraint("DistanceX", 30, 2, -1, 1, Q("36.02158 mm")),
    Sketcher.Constraint("DistanceY", 38, 2, -1, 1, Q("3.854708 mm")),
    Sketcher.Constraint("DistanceX", 22, 3, -1, 1, Q("25.846207 mm")),
    Sketcher.Constraint("DistanceX", 23, 3, -1, 1, Q("43.846207 mm")),
    Sketcher.Constraint("DistanceX", -1, 1, 32, 3, Q("46.153793 mm")),
    Sketcher.Constraint("DistanceX", -1, 1, 33, 3, Q("83.153793 mm")),
    Sketcher.Constraint("DistanceX", -1, 1, 34, 3, Q("94.153793 mm")),
    Sketcher.Constraint("DistanceX", -1, 1, 35, 3, Q("105.153793 mm")),
    Sketcher.Constraint("DistanceX", -1, 1, 36, 3, Q("120.153793 mm")),
    Sketcher.Constraint("DistanceX", -1, 1, 37, 3, Q("43.092453 mm")),
    Sketcher.Constraint("DistanceY", 48, 3, -1, 1, Q("21.089147 mm")),
])
sketch2.setExpression("Constraints[109]", "Params.sketch2_diameter")
sketch2.setExpression("Constraints[110]", "Params.sketch2_radius")
sketch2.setExpression("Constraints[111]", "Params.sketch2_radius2")
sketch2.setExpression("Constraints[112]", "Params.sketch2_diameter2")
sketch2.setExpression("Constraints[113]", "Params.sketch2_diameter3")
pad2 = body2.newObject("PartDesign::Pad", "Pad001")
pad2.Profile = sketch2
pad2.setExpression("Length", "Params.pad2_length")
pad2.Reversed = True

# Sketch on XY plane
sketch3 = body2.newObject("Sketcher::SketchObject", "Sketch002")
sketch3.AttachmentSupport = (doc.getObject("XY_Plane001"), [""])
sketch3.MapMode = "FlatFace"
add_polygon(sketch3, [(-45.365976, -56.937102), (-45.365976, -61.468214), (7.751363, -61.468214), (7.751363, -56.937102)])  # lines 0-3
add_polygon(sketch3, [(7.751363, -118.629885), (7.751363, -111.346679), (-25.151521, -115.854708), (-25.151521, -118.629885)])  # lines 4-7
add_polygon(sketch3, [(-25.151521, -3.854708), (7.751363, -8.362738), (7.751363, -1.079531), (-25.151521, -1.079531)])  # lines 8-11
sketch3.addConstraint([
    Sketcher.Constraint("Vertical", 0),
    Sketcher.Constraint("Horizontal", 1),
    Sketcher.Constraint("Vertical", 2),
    Sketcher.Constraint("Horizontal", 3),
    Sketcher.Constraint("Vertical", 4),
    Sketcher.Constraint("Vertical", 6),
    Sketcher.Constraint("Horizontal", 7),
    Sketcher.Constraint("Vertical", 9),
    Sketcher.Constraint("Horizontal", 10),
    Sketcher.Constraint("Vertical", 11),
    Sketcher.Constraint("Vertical", 2, 2, 4, 2),
    Sketcher.Constraint("Vertical", 7, 2, 8, 2),
    Sketcher.Constraint("Vertical", 6, 2, 10, 2),
    Sketcher.Constraint("Equal", 4, 9),
    Sketcher.Constraint("Equal", 6, 11),
    Sketcher.Constraint("DistanceX", 1, 1, 1, 2, Q("53.117339 mm")),
    Sketcher.Constraint("DistanceY", 2, 2, -1, 1, Q("56.937102 mm")),
    Sketcher.Constraint("Distance", 5, Q("33.210271 mm")),
    Sketcher.Constraint("DistanceX", 7, 1, 7, 2, Q("32.902884 mm")),
    Sketcher.Constraint("DistanceY", 0, 2, 0, 1, Q("4.531112 mm")),
    Sketcher.Constraint("DistanceY", 4, 1, 4, 2, Q("7.283206 mm")),
    Sketcher.Constraint("DistanceY", 4, 2, -1, 1, Q("111.346679 mm")),
    Sketcher.Constraint("DistanceX", 5, 2, -1, 1, Q("25.151521 mm")),
    Sketcher.Constraint("DistanceY", 9, 2, -1, 1, Q("1.079531 mm")),
])
pocket1 = body2.newObject("PartDesign::Pocket", "Pocket")
pocket1.Profile = sketch3
pocket1.setExpression("Length", "Params.pocket1_length")

# Sketch on XY plane
sketch4 = body2.newObject("Sketcher::SketchObject", "Sketch003")
sketch4.AttachmentSupport = (doc.getObject("XY_Plane001"), [""])
sketch4.MapMode = "FlatFace"
add_polygon(sketch4, [(7.751363, -112.597547), (16.776637, -103.572273), (16.776637, -16.137144), (7.751363, -7.111869)])  # lines 0-3
sketch4.addConstraint([
    Sketcher.Constraint("Vertical", 1),
    Sketcher.Constraint("Vertical", 3),
    Sketcher.Constraint("Perpendicular", 0, 2),
    Sketcher.Constraint("Equal", 0, 2),
    Sketcher.Constraint("DistanceY", 1, 1, 1, 2, Q("87.435129 mm")),
    Sketcher.Constraint("DistanceY", 3, 2, 3, 1, Q("105.485678 mm")),
    Sketcher.Constraint("DistanceY", 2, 2, -1, 1, Q("7.111869 mm")),
    Sketcher.Constraint("DistanceX", -1, 1, 0, 2, Q("16.776637 mm")),
])
pocket2 = body2.newObject("PartDesign::Pocket", "Pocket001")
pocket2.Profile = sketch4
pocket2.setExpression("Length", "Params.pocket2_length")
doc.recompute()

fillet = body2.newObject("PartDesign::Fillet", "Fillet")
fillet.Base = (pocket2, edges_at(pocket2, [
    (7.751, -112.598, -2),
    (7.751, -7.112, -2),
    (16.777, -16.137, -2),
    (16.777, -103.572, -2),
]))
fillet.setExpression("Radius", "Params.fillet_radius")

doc.recompute()
